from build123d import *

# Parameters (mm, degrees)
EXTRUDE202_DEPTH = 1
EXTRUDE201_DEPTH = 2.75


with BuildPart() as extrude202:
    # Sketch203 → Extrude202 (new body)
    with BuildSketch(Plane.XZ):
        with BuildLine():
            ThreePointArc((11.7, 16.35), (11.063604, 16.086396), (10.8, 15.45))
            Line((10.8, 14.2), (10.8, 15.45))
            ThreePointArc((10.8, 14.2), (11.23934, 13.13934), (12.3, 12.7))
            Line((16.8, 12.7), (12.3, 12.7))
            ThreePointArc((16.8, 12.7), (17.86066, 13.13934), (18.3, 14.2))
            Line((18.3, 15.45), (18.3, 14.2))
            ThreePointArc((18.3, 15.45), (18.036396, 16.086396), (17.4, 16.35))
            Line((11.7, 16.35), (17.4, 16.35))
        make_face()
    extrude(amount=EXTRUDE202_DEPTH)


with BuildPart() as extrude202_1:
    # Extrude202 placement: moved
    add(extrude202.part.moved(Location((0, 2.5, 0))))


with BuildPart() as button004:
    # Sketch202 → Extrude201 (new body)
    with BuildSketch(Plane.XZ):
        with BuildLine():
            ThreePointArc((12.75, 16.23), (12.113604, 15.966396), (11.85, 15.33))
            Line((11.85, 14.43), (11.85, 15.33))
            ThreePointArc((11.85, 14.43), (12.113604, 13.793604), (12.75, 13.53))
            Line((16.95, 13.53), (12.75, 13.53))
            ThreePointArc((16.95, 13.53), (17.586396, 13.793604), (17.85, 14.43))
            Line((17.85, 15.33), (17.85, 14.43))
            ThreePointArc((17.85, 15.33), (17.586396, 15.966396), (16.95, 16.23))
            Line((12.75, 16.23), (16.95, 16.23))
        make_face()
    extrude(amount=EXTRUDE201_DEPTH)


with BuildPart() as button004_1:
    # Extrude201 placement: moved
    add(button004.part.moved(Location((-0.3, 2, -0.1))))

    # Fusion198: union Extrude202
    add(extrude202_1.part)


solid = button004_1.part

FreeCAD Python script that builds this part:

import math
import FreeCAD as App
import Part
import Sketcher

V = App.Vector

doc = App.newDocument("Part")
body = doc.addObject("PartDesign::Body", "Body")

# Sketch on XZ plane
sketch1 = body.newObject("Sketcher::SketchObject", "Sketch")
sketch1.AttachmentSupport = (doc.getObject("XZ_Plane"), [""])
sketch1.MapMode = "FlatFace"
sketch1.addGeometry([
    Part.ArcOfCircle(Part.Circle(V(11.7, 15.4, 0), V(0, 0, 1), 0.9), math.radians(90), math.radians(180)),  # 0
    Part.LineSegment(V(10.8, 15.4, 0), V(10.8, 14.2, 0)),  # 1
    Part.ArcOfCircle(Part.Circle(V(12.3, 14.2, 0), V(0, 0, 1), 1.5), math.radians(-180), math.radians(-90)),  # 2
    Part.LineSegment(V(12.3, 12.7, 0), V(16.8, 12.7, 0)),  # 3
    Part.ArcOfCircle(Part.Circle(V(16.8, 14.2, 0), V(0, 0, 1), 1.5), math.radians(-90), math.radians(0)),  # 4
    Part.LineSegment(V(18.3, 14.2, 0), V(18.3, 15.4, 0)),  # 5
    Part.ArcOfCircle(Part.Circle(V(17.4, 15.4, 0), V(0, 0, 1), 0.9), math.radians(0), math.radians(90)),  # 6
    Part.LineSegment(V(17.4, 16.4, 0), V(11.7, 16.4, 0)),  # 7
], False)
sketch1.addConstraint([
    Sketcher.Constraint("Tangent", 0, 2, 1, 1),
    Sketcher.Constraint("Tangent", 1, 2, 2, 1),
    Sketcher.Constraint("Tangent", 2, 2, 3, 1),
    Sketcher.Constraint("Tangent", 3, 2, 4, 1),
    Sketcher.Constraint("Tangent", 4, 2, 5, 1),
    Sketcher.Constraint("Tangent", 5, 2, 6, 1),
    Sketcher.Constraint("Tangent", 6, 2, 7, 1),
    Sketcher.Constraint("Tangent", 7, 2, 0, 1),
    Sketcher.Constraint("Vertical", 1),
    Sketcher.Constraint("Horizontal", 3),
    Sketcher.Constraint("Vertical", 5),
    Sketcher.Constraint("Horizontal", 7),
    Sketcher.Constraint("Equal", 2, 4),
    Sketcher.Constraint("Equal", 0, 6),
    Sketcher.Constraint("Radius", 0, 0.9),
    Sketcher.Constraint("Radius", 2, 1.500001),
    Sketcher.Constraint("DistanceX", 3, 1, 3, 2, 4.5),
    Sketcher.Constraint("DistanceY", 1, 2, 1, 1, 1.25),
    Sketcher.Constraint("DistanceX", -1, 1, 0, 3, 11.7),
    Sketcher.Constraint("DistanceY", -1, 1, 2, 3, 14.200001),
])
pad1 = body.newObject("PartDesign::Pad", "Pad")
pad1.Profile = sketch1
pad1.Length = 1
body2 = doc.addObject("PartDesign::Body", "Body001")
doc.recompute()

body.Placement = App.Placement(V(0, 2.5, 0), App.Rotation(V(0, 0, 1), 0))
boolean = body2.newObject("PartDesign::Boolean", "Boolean")
boolean.Type = "Fuse"
boolean.addObjects([body])
body3 = doc.addObject("PartDesign::Body", "Body002")

# Sketch on XZ plane
sketch2 = body3.newObject("Sketcher::SketchObject", "Sketch001")
sketch2.AttachmentSupport = (doc.getObject("XZ_Plane002"), [""])
sketch2.MapMode = "FlatFace"
sketch2.addGeometry([
    Part.ArcOfCircle(Part.Circle(V(12.8, 15.3, 0), V(0, 0, 1), 0.9), math.radians(90), math.radians(180)),  # 0
    Part.LineSegment(V(11.8, 15.3, 0), V(11.8, 14.4, 0)),  # 1
    Part.ArcOfCircle(Part.Circle(V(12.8, 14.4, 0), V(0, 0, 1), 0.9), math.radians(-180), math.radians(-90)),  # 2
    Part.LineSegment(V(12.8, 13.5, 0), V(16.9, 13.5, 0)),  # 3
    Part.ArcOfCircle(Part.Circle(V(16.9, 14.4, 0), V(0, 0, 1), 0.9), math.radians(-90), math.radians(0)),  # 4
    Part.LineSegment(V(17.9, 14.4, 0), V(17.9, 15.3, 0)),  # 5
    Part.ArcOfCircle(Part.Circle(V(16.9, 15.3, 0), V(0, 0, 1), 0.9), math.radians(0), math.radians(90)),  # 6
    Part.LineSegment(V(16.9, 16.2, 0), V(12.8, 16.2, 0)),  # 7
], False)
sketch2.addConstraint([
    Sketcher.Constraint("Tangent", 0, 2, 1, 1),
    Sketcher.Constraint("Tangent", 1, 2, 2, 1),
    Sketcher.Constraint("Tangent", 2, 2, 3, 1),
    Sketcher.Constraint("Tangent", 3, 2, 4, 1),
    Sketcher.Constraint("Tangent", 4, 2, 5, 1),
    Sketcher.Constraint("Tangent", 5, 2, 6, 1),
    Sketcher.Constraint("Tangent", 6, 2, 7, 1),
    Sketcher.Constraint("Tangent", 7, 2, 0, 1),
    Sketcher.Constraint("Vertical", 1),
    Sketcher.Constraint("Horizontal", 3),
    Sketcher.Constraint("Vertical", 5),
    Sketcher.Constraint("Horizontal", 7),
    Sketcher.Constraint("Equal", 0, 2),
    Sketcher.Constraint("Equal", 2, 4),
    Sketcher.Constraint("Equal", 4, 6),
    Sketcher.Constraint("Radius", 0, 0.9),
    Sketcher.Constraint("DistanceX", 3, 1, 3, 2, 4.2),
    Sketcher.Constraint("DistanceY", 1, 2, 1, 1, 0.9),
    Sketcher.Constraint("DistanceX", -1, 1, 0, 3, 12.75),
    Sketcher.Constraint("DistanceY", -1, 1, 0, 3, 15.33),
])
pad2 = body3.newObject("PartDesign::Pad", "Pad001")
pad2.Profile = sketch2
pad2.Length = 2.75
body4 = doc.addObject("PartDesign::Body", "Body003")
doc.recompute()

body3.Placement = App.Placement(V(-0.3, 2, -0.1), App.Rotation(V(0, 0, 1), 0))
boolean2 = body4.newObject("PartDesign::Boolean", "Boolean001")
boolean2.Type = "Fuse"
boolean2.addObjects([body3])
doc.recompute()

boolean3 = body4.newObject("PartDesign::Boolean", "Boolean002")
boolean3.Type = "Fuse"
boolean3.addObjects([body2])

doc.recompute()
